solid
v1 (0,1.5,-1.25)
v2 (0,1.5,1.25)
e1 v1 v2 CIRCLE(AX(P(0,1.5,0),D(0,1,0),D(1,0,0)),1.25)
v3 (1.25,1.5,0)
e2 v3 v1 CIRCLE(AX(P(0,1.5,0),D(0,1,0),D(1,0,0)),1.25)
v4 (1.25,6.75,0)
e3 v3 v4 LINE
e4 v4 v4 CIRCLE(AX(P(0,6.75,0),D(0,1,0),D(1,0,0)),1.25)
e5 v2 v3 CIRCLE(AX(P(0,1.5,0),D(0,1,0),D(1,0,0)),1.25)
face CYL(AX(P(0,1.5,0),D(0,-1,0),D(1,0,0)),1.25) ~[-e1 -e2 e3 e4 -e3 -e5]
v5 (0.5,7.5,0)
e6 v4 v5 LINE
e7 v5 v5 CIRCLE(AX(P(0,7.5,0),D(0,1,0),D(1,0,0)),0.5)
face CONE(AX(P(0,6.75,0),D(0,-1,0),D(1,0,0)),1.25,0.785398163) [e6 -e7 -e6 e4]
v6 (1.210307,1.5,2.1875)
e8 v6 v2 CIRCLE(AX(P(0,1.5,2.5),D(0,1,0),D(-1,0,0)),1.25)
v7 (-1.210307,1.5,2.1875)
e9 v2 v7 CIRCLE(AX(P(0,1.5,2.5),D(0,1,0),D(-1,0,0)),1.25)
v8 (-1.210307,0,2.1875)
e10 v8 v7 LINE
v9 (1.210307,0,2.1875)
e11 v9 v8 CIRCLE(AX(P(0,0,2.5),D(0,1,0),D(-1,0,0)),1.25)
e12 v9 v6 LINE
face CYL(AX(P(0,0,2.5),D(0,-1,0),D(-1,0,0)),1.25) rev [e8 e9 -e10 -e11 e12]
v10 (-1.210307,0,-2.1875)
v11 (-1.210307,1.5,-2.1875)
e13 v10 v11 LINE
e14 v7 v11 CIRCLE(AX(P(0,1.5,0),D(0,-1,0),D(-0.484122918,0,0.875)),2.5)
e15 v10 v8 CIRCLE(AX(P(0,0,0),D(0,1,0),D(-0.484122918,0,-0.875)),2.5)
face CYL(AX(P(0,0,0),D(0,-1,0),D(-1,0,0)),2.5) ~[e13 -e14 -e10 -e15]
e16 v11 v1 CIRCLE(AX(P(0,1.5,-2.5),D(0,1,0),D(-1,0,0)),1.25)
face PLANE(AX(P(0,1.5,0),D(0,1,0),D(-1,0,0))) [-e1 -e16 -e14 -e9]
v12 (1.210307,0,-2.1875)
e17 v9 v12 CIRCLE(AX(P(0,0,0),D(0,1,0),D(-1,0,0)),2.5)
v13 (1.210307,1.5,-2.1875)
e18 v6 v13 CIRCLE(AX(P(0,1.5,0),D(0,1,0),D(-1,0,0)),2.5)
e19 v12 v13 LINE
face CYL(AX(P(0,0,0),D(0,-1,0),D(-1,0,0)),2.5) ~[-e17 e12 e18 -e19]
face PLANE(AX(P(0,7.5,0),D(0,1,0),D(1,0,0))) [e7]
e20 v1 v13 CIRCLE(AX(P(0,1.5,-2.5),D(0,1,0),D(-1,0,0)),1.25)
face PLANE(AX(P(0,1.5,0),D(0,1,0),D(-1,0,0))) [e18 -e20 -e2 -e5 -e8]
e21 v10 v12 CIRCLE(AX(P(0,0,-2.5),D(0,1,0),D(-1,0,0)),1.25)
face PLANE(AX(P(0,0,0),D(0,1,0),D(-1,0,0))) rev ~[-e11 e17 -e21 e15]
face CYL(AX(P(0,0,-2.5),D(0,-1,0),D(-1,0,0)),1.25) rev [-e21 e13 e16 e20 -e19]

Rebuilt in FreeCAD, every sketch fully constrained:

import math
import FreeCAD as App
import Part
import Sketcher
from FreeCAD import Vector


def edges_at(feature, points):
    """Names of the edges that pass closest to the given points."""
    edges = feature.Shape.Edges
    near = lambda p: min(range(len(edges)), key=lambda i: edges[i].distToShape(Part.Vertex(*p))[0])
    return sorted({f"Edge{near(p) + 1}" for p in points})

doc = App.newDocument("Part")
body = doc.addObject("PartDesign::Body", "Body")

# Sketch on XZ plane
sketch1 = body.newObject("Sketcher::SketchObject", "Sketch")
sketch1.AttachmentSupport = (doc.getObject("XZ_Plane"), [""])
sketch1.MapMode = "FlatFace"
sketch1.addGeometry([
    Part.ArcOfCircle(Part.Circle(Vector(0, 0, 0), Vector(0, 0, 1), 2.5), math.radians(119), math.radians(241)),
    Part.ArcOfCircle(Part.Circle(Vector(0, 2.5, 0), Vector(0, 0, 1), 1.2), math.radians(-166), math.radians(-14)),
    Part.ArcOfCircle(Part.Circle(Vector(0, 0, 0), Vector(0, 0, 1), 2.5), math.radians(-61), math.radians(61)),
    Part.ArcOfCircle(Part.Circle(Vector(0, -2.5, 0), Vector(0, 0, 1), 1.2), math.radians(14), math.radians(166)),
], False)
sketch1.addConstraint([
    Sketcher.Constraint("Coincident", 0, 1, 1, 1),
    Sketcher.Constraint("Coincident", 1, 2, 2, 2),
    Sketcher.Constraint("Coincident", 2, 1, 3, 1),
    Sketcher.Constraint("Coincident", 3, 2, 0, 2),
    Sketcher.Constraint("Coincident", 0, 3, -1, 1),
    Sketcher.Constraint("Coincident", 2, 3, -1, 1),
    Sketcher.Constraint("Equal", 0, 2),
    Sketcher.Constraint("Equal", 1, 3),
    Sketcher.Constraint("Symmetric", 1, 3, 3, 3, -1, 1),
    Sketcher.Constraint("PointOnObject", 1, 3, -2),
    Sketcher.Constraint("Radius", 0, 2.5),
    Sketcher.Constraint("Radius", 1, 1.25),
    Sketcher.Constraint("DistanceY", 3, 3, 1, 3, 5.0),
])
pad1 = body.newObject("PartDesign::Pad", "Pad")
pad1.Profile = sketch1
pad1.Length = 1.5
pad1.Reversed = True

# Sketch on XZ plane
sketch2 = body.newObject("Sketcher::SketchObject", "Sketch001")
sketch2.AttachmentSupport = (doc.getObject("XZ_Plane"), [""])
sketch2.MapMode = "FlatFace"
sketch2.AttachmentOffset = App.Placement(Vector(0, 0, -1.5), App.Rotation())
sketch2.addGeometry(Part.Circle(Vector(0, 0, 0), Vector(0, 0, 1), 1.2), False)
sketch2.addConstraint([
    Sketcher.Constraint("Coincident", 0, 3, -1, 1),
    Sketcher.Constraint("Diameter", 0, 2.5),
])
pad2 = body.newObject("PartDesign::Pad", "Pad001")
pad2.Profile = sketch2
pad2.Length = 6
pad2.Reversed = True
doc.recompute()

chamfer = body.newObject("PartDesign::Chamfer", "Chamfer")
chamfer.Base = (pad2, edges_at(pad2, [(-1.25, 7.5, 0)]))
chamfer.Size = 0.75

doc.recompute()
